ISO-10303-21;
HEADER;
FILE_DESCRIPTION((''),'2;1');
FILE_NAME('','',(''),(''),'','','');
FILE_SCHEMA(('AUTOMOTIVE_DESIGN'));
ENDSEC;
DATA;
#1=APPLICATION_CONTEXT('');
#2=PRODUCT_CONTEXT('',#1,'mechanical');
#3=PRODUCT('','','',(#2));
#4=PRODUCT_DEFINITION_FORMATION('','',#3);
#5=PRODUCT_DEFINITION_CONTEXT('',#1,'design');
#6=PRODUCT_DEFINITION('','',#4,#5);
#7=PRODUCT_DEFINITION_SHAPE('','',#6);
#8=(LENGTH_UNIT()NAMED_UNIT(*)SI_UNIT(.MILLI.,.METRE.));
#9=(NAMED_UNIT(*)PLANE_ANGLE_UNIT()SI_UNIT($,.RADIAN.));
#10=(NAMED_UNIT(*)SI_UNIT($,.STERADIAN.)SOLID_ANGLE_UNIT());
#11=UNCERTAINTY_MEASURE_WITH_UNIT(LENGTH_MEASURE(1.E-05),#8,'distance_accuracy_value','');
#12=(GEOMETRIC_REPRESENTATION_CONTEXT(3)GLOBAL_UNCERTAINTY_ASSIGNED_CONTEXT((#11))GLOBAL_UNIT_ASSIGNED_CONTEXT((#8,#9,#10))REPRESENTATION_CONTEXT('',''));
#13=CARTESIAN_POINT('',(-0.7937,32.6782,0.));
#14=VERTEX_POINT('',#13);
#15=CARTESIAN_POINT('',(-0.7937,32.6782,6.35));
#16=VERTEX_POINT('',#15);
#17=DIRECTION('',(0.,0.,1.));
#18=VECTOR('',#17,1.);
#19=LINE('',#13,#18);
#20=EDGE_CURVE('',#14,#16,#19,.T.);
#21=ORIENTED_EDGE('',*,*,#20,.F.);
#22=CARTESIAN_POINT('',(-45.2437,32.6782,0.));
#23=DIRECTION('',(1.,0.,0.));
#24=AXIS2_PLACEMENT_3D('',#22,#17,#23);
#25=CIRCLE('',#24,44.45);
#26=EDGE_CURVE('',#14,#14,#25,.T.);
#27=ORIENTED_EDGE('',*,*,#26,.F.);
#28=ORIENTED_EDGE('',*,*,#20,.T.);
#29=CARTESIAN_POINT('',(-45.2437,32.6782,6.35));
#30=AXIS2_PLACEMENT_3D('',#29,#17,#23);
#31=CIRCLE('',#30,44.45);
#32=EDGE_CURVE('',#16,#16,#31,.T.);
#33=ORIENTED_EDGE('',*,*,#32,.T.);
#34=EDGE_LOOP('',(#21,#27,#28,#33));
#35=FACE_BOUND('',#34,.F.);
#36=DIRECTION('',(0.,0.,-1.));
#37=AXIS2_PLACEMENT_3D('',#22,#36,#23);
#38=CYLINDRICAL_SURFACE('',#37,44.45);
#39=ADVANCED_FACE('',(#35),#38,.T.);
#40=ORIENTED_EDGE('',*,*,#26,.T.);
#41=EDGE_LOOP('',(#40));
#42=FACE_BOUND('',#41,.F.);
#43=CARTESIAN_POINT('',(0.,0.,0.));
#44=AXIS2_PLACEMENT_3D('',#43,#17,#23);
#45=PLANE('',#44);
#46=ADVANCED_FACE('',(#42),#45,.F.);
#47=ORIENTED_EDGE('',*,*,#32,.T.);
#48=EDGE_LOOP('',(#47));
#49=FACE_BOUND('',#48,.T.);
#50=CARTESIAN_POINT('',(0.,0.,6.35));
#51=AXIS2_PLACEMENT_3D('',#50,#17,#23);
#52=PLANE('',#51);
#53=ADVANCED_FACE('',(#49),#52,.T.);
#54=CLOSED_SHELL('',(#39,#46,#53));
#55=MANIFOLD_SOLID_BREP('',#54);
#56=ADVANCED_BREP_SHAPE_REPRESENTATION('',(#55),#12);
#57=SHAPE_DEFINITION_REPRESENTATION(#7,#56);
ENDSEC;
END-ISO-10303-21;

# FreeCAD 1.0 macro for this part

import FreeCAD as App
import Part
import Sketcher
Q = App.Units.Quantity

doc = App.newDocument("Part")
body = doc.addObject("PartDesign::Body", "Body")

sketch1 = body.newObject("Sketcher::SketchObject", "Sketch")
sketch1.AttachmentSupport = (doc.getObject("XY_Plane"), [""])
sketch1.MapMode = "FlatFace"
sketch1.addGeometry(Part.Circle(App.Vector(-45.2437, 32.6782, 0), App.Vector(0, 0, 1), 44.45), False)
sketch1.addConstraint(Sketcher.Constraint("Diameter", 0, Q("3.5 in")))
sketch1.addConstraint(Sketcher.Constraint("DistanceX", 0, 3, -1, 1, Q("1.781248 in")))
sketch1.addConstraint(Sketcher.Constraint("DistanceY", -1, 1, 0, 3, Q("32.6782 mm")))
pad1 = body.newObject("PartDesign::Pad", "Pad")
pad1.Profile = sketch1
pad1.Length = Q("0.25 in")

doc.recompute()
